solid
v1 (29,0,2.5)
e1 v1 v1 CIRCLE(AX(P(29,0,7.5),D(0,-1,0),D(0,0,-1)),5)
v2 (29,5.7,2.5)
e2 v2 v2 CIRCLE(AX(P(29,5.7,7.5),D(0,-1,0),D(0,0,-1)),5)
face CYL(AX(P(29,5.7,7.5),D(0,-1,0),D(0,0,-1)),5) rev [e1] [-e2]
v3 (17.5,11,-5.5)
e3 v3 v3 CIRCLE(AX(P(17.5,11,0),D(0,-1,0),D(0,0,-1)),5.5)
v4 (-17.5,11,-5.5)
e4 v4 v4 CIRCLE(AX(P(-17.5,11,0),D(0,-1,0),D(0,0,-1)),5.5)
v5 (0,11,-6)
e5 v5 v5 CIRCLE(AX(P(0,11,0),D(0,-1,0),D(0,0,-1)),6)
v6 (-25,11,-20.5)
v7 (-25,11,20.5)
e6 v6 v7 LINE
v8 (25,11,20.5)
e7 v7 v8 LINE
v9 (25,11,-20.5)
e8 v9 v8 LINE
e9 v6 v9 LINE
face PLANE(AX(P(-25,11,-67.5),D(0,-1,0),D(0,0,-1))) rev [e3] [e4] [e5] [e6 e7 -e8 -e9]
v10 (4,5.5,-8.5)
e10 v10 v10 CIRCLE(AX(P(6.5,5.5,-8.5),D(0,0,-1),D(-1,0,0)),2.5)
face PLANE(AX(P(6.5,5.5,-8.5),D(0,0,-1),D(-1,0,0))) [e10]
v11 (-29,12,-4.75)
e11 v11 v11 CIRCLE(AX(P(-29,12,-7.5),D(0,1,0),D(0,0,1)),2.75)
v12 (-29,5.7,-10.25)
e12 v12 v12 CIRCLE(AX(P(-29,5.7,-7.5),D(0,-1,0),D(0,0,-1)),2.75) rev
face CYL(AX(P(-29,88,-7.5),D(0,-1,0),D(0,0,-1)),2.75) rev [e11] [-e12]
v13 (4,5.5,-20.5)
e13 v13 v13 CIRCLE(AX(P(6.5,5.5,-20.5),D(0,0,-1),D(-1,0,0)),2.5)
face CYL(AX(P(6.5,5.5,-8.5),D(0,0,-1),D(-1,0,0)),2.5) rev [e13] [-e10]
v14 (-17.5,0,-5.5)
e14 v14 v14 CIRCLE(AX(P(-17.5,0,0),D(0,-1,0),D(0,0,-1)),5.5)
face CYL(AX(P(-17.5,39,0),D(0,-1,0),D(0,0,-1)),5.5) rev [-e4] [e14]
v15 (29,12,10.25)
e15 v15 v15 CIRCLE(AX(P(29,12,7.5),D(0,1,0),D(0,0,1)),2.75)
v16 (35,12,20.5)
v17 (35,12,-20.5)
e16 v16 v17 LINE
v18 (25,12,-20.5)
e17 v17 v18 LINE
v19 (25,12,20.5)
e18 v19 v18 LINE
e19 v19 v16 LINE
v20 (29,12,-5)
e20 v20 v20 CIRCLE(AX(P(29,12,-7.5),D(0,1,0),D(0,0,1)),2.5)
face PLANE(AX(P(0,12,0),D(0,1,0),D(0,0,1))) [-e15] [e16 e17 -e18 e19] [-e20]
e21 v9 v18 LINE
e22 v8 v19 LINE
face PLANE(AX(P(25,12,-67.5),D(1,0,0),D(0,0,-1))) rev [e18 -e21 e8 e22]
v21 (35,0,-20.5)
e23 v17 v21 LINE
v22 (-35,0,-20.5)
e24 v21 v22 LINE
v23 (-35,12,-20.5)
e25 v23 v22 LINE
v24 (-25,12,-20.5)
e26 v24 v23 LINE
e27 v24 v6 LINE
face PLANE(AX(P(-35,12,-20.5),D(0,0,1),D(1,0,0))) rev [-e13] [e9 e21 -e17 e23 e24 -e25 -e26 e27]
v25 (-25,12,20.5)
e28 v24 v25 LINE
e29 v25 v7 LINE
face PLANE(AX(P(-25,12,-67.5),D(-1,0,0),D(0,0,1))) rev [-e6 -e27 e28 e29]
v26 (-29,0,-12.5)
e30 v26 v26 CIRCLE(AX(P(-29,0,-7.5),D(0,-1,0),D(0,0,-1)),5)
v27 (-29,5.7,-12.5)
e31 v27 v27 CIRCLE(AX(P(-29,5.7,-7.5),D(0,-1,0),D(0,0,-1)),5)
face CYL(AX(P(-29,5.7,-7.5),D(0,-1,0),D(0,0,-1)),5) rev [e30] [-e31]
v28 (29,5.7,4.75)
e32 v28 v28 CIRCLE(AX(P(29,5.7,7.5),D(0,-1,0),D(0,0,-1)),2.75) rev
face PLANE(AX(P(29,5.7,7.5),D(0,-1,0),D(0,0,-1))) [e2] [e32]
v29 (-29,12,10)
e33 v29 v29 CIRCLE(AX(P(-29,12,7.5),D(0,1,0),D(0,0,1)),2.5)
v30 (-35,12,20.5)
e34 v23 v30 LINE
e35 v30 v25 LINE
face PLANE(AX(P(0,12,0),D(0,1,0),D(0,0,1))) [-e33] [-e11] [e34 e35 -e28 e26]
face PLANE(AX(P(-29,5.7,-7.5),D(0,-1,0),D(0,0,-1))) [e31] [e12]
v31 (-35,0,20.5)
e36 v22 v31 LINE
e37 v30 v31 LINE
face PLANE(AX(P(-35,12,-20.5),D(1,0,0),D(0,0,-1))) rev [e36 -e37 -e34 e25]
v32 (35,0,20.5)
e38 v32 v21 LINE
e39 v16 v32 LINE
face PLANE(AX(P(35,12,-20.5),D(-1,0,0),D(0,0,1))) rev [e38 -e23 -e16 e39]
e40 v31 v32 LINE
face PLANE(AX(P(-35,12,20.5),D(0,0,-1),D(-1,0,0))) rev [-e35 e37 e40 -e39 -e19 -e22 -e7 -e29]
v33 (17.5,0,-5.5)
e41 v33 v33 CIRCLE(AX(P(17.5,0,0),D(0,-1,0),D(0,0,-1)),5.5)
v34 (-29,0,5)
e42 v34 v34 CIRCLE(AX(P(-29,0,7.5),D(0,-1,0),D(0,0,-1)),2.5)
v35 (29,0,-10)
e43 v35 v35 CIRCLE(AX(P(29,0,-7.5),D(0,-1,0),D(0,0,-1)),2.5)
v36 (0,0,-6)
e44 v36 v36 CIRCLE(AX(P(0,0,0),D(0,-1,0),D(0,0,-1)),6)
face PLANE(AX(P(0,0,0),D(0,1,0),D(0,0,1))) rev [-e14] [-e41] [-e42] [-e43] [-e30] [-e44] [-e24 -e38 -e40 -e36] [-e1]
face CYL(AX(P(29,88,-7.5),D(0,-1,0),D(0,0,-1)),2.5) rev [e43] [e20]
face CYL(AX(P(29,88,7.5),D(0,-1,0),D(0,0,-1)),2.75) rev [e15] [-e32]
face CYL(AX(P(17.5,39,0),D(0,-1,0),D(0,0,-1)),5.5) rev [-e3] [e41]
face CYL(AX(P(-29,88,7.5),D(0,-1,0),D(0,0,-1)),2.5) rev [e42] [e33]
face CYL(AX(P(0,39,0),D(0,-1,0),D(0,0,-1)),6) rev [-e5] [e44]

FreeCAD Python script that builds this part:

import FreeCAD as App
import Part
import Sketcher
from FreeCAD import Vector
Q = App.Units.Quantity

doc = App.newDocument("Part")
body = doc.addObject("PartDesign::Body", "Body")

sketch1 = body.newObject("Sketcher::SketchObject", "Sketch")
sketch1.AttachmentSupport = (doc.getObject("XZ_Plane"), [""])
sketch1.MapMode = "FlatFace"
sketch1.addGeometry(Part.LineSegment(Vector(-35, -20, 0), Vector(-35, 20, 0)), False)
sketch1.addGeometry(Part.LineSegment(Vector(-35, 20, 0), Vector(35, 20, 0)), False)
sketch1.addGeometry(Part.LineSegment(Vector(35, 20, 0), Vector(35, -20, 0)), False)
sketch1.addGeometry(Part.LineSegment(Vector(35, -20, 0), Vector(-35, -20, 0)), False)
sketch1.addConstraint(Sketcher.Constraint("Coincident", 0, 2, 1, 1))
sketch1.addConstraint(Sketcher.Constraint("Coincident", 1, 2, 2, 1))
sketch1.addConstraint(Sketcher.Constraint("Coincident", 2, 2, 3, 1))
sketch1.addConstraint(Sketcher.Constraint("Coincident", 3, 2, 0, 1))
sketch1.addConstraint(Sketcher.Constraint("Vertical", 0))
sketch1.addConstraint(Sketcher.Constraint("Horizontal", 1))
sketch1.addConstraint(Sketcher.Constraint("Vertical", 2))
sketch1.addConstraint(Sketcher.Constraint("Horizontal", 3))
sketch1.addConstraint(Sketcher.Constraint("Symmetric", 0, 2, 2, 2, -1, 1))
sketch1.addConstraint(Sketcher.Constraint("DistanceX", 1, 1, 1, 2, Q("70 mm")))
sketch1.addConstraint(Sketcher.Constraint("DistanceY", 0, 1, 0, 2, Q("41 mm")))
pad1 = body.newObject("PartDesign::Pad", "Pad")
pad1.Profile = sketch1
pad1.Length = 12
pad1.Reversed = True

sketch2 = body.newObject("Sketcher::SketchObject", "Sketch001")
sketch2.AttachmentSupport = (doc.getObject("XY_Plane"), [""])
sketch2.MapMode = "FlatFace"
sketch2.AttachmentOffset = App.Placement(Vector(0, 0, 20.5), App.Rotation())
sketch2.addGeometry(Part.LineSegment(Vector(-25, 12, 0), Vector(-25, 11, 0)), False)
sketch2.addGeometry(Part.LineSegment(Vector(-25, 11, 0), Vector(25, 11, 0)), False)
sketch2.addGeometry(Part.LineSegment(Vector(25, 11, 0), Vector(25, 12, 0)), False)
sketch2.addGeometry(Part.LineSegment(Vector(25, 12, 0), Vector(-25, 12, 0)), False)
sketch2.addConstraint(Sketcher.Constraint("Coincident", 0, 2, 1, 1))
sketch2.addConstraint(Sketcher.Constraint("Coincident", 1, 2, 2, 1))
sketch2.addConstraint(Sketcher.Constraint("Coincident", 2, 2, 3, 1))
sketch2.addConstraint(Sketcher.Constraint("Coincident", 3, 2, 0, 1))
sketch2.addConstraint(Sketcher.Constraint("Vertical", 0))
sketch2.addConstraint(Sketcher.Constraint("Horizontal", 1))
sketch2.addConstraint(Sketcher.Constraint("Vertical", 2))
sketch2.addConstraint(Sketcher.Constraint("Horizontal", 3))
sketch2.addConstraint(Sketcher.Constraint("DistanceX", 1, 1, 1, 2, Q("50 mm")))
sketch2.addConstraint(Sketcher.Constraint("DistanceY", 0, 2, 0, 1, Q("1 mm")))
sketch2.addConstraint(Sketcher.Constraint("DistanceX", 0, 2, -1, 1, Q("25 mm")))
sketch2.addConstraint(Sketcher.Constraint("DistanceY", -1, 1, 0, 2, Q("11 mm")))
pocket1 = body.newObject("PartDesign::Pocket", "Pocket")
pocket1.Profile = sketch2
pocket1.Length = 88

sketch3 = body.newObject("Sketcher::SketchObject", "Sketch002")
sketch3.AttachmentSupport = (doc.getObject("XZ_Plane"), [""])
sketch3.MapMode = "FlatFace"
sketch3.addGeometry(Part.Circle(Vector(29, -7.5, 0), Vector(0, 0, 1), 2.5), False)
sketch3.addGeometry(Part.Circle(Vector(-29, 7.5, 0), Vector(0, 0, 1), 2.5), False)
sketch3.addGeometry(Part.Circle(Vector(29, 7.5, 0), Vector(0, 0, 1), 2.8), False)
sketch3.addGeometry(Part.Circle(Vector(-29, -7.5, 0), Vector(0, 0, 1), 2.8), False)
sketch3.addConstraint(Sketcher.Constraint("Equal", 0, 1))
sketch3.addConstraint(Sketcher.Constraint("Equal", 2, 3))
sketch3.addConstraint(Sketcher.Constraint("Symmetric", 0, 3, 1, 3, -1, 1))
sketch3.addConstraint(Sketcher.Constraint("Symmetric", 2, 3, 3, 3, -1, 1))
sketch3.addConstraint(Sketcher.Constraint("Symmetric", 1, 3, 2, 3, -2))
sketch3.addConstraint(Sketcher.Constraint("Diameter", 0, Q("5 mm")))
sketch3.addConstraint(Sketcher.Constraint("Diameter", 2, Q("5.5 mm")))
sketch3.addConstraint(Sketcher.Constraint("DistanceX", -1, 1, 0, 3, Q("29 mm")))
sketch3.addConstraint(Sketcher.Constraint("DistanceY", 0, 3, 1, 3, Q("15 mm")))
pocket2 = body.newObject("PartDesign::Pocket", "Pocket001")
pocket2.Profile = sketch3
pocket2.Length = 88

sketch4 = body.newObject("Sketcher::SketchObject", "Sketch003")
sketch4.AttachmentSupport = (doc.getObject("XZ_Plane"), [""])
sketch4.MapMode = "FlatFace"
sketch4.addGeometry(Part.Circle(Vector(-29, -8, 0), Vector(0, 0, 1), 5), False)
sketch4.addGeometry(Part.Circle(Vector(29, 8, 0), Vector(0, 0, 1), 5), False)
sketch4.addConstraint(Sketcher.Constraint("Equal", 0, 1))
sketch4.addConstraint(Sketcher.Constraint("Symmetric", 0, 3, 1, 3, -1, 1))
sketch4.addConstraint(Sketcher.Constraint("Diameter", 0, Q("10 mm")))
sketch4.addConstraint(Sketcher.Constraint("DistanceX", 0, 3, -1, 1, Q("29 mm")))
sketch4.addConstraint(Sketcher.Constraint("DistanceY", 0, 3, 1, 3, Q("15 mm")))
pocket3 = body.newObject("PartDesign::Pocket", "Pocket002")
pocket3.Profile = sketch4
pocket3.Length = 5.7

sketch5 = body.newObject("Sketcher::SketchObject", "Sketch004")
sketch5.AttachmentSupport = (doc.getObject("XY_Plane"), [""])
sketch5.MapMode = "FlatFace"
sketch5.AttachmentOffset = App.Placement(Vector(0, 0, -20.5), App.Rotation())
sketch5.addGeometry(Part.Circle(Vector(6.5, 6, 0), Vector(0, 0, 1), 2.5), False)
sketch5.addConstraint(Sketcher.Constraint("Diameter", 0, Q("5 mm")))
sketch5.addConstraint(Sketcher.Constraint("DistanceY", -1, 1, 0, 3, Q("6 mm")))
sketch5.addConstraint(Sketcher.Constraint("DistanceX", -1, 1, 0, 3, Q("6.5 mm")))
pocket4 = body.newObject("PartDesign::Pocket", "Pocket003")
pocket4.Profile = sketch5
pocket4.Length = 12
pocket4.Reversed = True

sketch6 = body.newObject("Sketcher::SketchObject", "Sketch005")
sketch6.AttachmentSupport = (doc.getObject("XZ_Plane"), [""])
sketch6.MapMode = "FlatFace"
sketch6.addGeometry(Part.Circle(Vector(0, 0, 0), Vector(0, 0, 1), 6), False)
sketch6.addGeometry(Part.Circle(Vector(-18, 0, 0), Vector(0, 0, 1), 6), False)
sketch6.addGeometry(Part.Circle(Vector(18, 0, 0), Vector(0, 0, 1), 6), False)
sketch6.addConstraint(Sketcher.Constraint("Coincident", 0, 3, -1, 1))
sketch6.addConstraint(Sketcher.Constraint("Equal", 1, 2))
sketch6.addConstraint(Sketcher.Constraint("Symmetric", 1, 3, 2, 3, -1, 1))
sketch6.addConstraint(Sketcher.Constraint("PointOnObject", 1, 3, -1))
sketch6.addConstraint(Sketcher.Constraint("Diameter", 0, Q("12 mm")))
sketch6.addConstraint(Sketcher.Constraint("Diameter", 1, Q("11 mm")))
sketch6.addConstraint(Sketcher.Constraint("DistanceX", 1, 3, 2, 3, Q("35 mm")))
pocket5 = body.newObject("PartDesign::Pocket", "Pocket004")
pocket5.Profile = sketch6
pocket5.Length = 39

sketch7 = body.newObject("Sketcher::SketchObject", "Sketch006")
sketch7.AttachmentSupport = (doc.getObject("XY_Plane"), [""])
sketch7.MapMode = "FlatFace"
sketch7.AttachmentOffset = App.Placement(Vector(0, 0, -20.5), App.Rotation())
sketch7.addGeometry(Part.Circle(Vector(6.5, 6, 0), Vector(0, 0, 1), 2.5), False)
sketch7.addConstraint(Sketcher.Constraint("Diameter", 0, Q("5 mm")))
sketch7.addConstraint(Sketcher.Constraint("DistanceY", -1, 1, 0, 3, Q("6 mm")))
sketch7.addConstraint(Sketcher.Constraint("DistanceX", -1, 1, 0, 3, Q("6.5 mm")))
pad2 = body.newObject("PartDesign::Pad", "Pad001")
pad2.Profile = sketch7
pad2.Length = 41

sketch8 = body.newObject("Sketcher::SketchObject", "Sketch007")
sketch8.AttachmentSupport = (doc.getObject("XY_Plane"), [""])
sketch8.MapMode = "FlatFace"
sketch8.AttachmentOffset = App.Placement(Vector(0, 0, -20.5), App.Rotation())
sketch8.addGeometry(Part.Circle(Vector(6.5, 5.5, 0), Vector(0, 0, 1), 2.5), False)
sketch8.addConstraint(Sketcher.Constraint("Diameter", 0, Q("5 mm")))
sketch8.addConstraint(Sketcher.Constraint("DistanceX", -1, 1, 0, 3, Q("6.5 mm")))
sketch8.addConstraint(Sketcher.Constraint("DistanceY", -1, 1, 0, 3, Q("5.5 mm")))
pocket6 = body.newObject("PartDesign::Pocket", "Pocket005")
pocket6.Profile = sketch8
pocket6.Length = 12
pocket6.Reversed = True

sketch9 = body.newObject("Sketcher::SketchObject", "Sketch008")
sketch9.AttachmentSupport = (doc.getObject("XZ_Plane"), [""])
sketch9.MapMode = "FlatFace"
sketch9.AttachmentOffset = App.Placement(Vector(0, 0, -11), App.Rotation())
sketch9.addGeometry(Part.Circle(Vector(0, 0, 0), Vector(0, 0, 1), 6), False)
sketch9.addConstraint(Sketcher.Constraint("Coincident", 0, 3, -1, 1))
sketch9.addConstraint(Sketcher.Constraint("Diameter", 0, Q("12 mm")))
pocket7 = body.newObject("PartDesign::Pocket", "Pocket006")
pocket7.Profile = sketch9
pocket7.Length = 30
pocket7.Reversed = True

doc.recompute()
